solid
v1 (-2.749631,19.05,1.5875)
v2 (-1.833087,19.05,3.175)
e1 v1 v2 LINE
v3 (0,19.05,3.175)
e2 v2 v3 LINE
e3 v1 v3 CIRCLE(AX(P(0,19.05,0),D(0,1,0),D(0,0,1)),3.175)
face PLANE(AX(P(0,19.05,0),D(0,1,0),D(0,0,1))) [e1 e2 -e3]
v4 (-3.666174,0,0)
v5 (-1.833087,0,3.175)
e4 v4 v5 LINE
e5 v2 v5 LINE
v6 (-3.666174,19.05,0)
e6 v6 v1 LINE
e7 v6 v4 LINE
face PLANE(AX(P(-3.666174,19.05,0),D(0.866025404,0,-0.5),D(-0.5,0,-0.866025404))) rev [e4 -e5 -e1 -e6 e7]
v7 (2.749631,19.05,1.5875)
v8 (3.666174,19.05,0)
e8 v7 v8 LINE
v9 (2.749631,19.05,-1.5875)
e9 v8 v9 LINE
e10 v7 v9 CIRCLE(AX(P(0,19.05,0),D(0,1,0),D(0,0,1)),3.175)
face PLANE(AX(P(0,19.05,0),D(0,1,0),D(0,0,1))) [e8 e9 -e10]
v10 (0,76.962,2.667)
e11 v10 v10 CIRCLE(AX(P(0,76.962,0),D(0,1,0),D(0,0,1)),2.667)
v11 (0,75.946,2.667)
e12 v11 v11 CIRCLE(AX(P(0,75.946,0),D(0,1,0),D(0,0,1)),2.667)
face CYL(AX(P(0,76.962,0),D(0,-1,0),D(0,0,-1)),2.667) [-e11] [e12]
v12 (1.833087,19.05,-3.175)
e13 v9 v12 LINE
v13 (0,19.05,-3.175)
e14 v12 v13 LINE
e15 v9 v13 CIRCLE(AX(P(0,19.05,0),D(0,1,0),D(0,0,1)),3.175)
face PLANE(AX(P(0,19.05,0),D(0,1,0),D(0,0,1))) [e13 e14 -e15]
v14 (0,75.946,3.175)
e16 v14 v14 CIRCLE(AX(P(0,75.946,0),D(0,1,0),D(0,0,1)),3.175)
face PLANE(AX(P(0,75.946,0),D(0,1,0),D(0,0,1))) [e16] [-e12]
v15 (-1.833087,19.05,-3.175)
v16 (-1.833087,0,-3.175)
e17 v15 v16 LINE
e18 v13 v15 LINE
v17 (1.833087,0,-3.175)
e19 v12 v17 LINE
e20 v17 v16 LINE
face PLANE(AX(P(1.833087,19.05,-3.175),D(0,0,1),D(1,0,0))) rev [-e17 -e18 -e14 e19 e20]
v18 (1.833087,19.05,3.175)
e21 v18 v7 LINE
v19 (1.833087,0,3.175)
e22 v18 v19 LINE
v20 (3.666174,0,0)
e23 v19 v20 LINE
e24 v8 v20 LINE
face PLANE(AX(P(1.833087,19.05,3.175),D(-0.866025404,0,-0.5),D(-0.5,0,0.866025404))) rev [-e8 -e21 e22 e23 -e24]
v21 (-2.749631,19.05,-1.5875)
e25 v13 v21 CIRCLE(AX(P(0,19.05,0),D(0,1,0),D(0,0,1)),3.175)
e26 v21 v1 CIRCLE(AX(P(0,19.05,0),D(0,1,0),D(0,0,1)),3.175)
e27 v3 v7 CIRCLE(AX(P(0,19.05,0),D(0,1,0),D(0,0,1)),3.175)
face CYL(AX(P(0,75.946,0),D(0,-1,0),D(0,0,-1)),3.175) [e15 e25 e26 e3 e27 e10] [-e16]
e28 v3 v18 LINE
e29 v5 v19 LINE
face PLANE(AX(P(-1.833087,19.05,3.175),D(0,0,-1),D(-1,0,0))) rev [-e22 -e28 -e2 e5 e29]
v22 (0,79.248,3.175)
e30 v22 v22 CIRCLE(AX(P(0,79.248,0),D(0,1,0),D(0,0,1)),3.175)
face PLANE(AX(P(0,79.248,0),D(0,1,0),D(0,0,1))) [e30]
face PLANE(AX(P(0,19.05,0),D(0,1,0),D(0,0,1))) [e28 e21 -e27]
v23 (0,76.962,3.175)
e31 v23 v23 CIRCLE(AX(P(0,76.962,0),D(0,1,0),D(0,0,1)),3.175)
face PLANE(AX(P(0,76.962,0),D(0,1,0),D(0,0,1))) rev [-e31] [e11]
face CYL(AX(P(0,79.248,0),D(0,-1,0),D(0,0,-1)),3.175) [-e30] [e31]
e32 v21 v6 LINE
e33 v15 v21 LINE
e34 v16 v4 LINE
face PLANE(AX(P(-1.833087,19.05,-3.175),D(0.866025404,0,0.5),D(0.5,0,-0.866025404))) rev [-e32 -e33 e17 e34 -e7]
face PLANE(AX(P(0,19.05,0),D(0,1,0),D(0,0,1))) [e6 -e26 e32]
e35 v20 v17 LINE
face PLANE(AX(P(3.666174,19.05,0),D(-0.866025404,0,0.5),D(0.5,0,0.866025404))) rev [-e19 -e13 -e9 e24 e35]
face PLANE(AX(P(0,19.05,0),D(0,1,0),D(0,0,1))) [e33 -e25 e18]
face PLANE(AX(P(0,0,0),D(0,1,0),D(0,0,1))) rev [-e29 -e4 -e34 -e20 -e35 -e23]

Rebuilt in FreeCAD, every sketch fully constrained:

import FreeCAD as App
import Part
import Sketcher
Q = App.Units.Quantity


def add_polygon(sketch, points):
    """Adds a closed chain of lines whose ends are joined by coincident constraints."""
    first, n = sketch.GeometryCount, len(points)
    for a, b in zip(points, points[1:] + points[:1]):
        sketch.addGeometry(Part.LineSegment(App.Vector(*a, 0), App.Vector(*b, 0)), False)
    for i in range(n):
        sketch.addConstraint(Sketcher.Constraint("Coincident", first + i, 2, first + (i + 1) % n, 1))

doc = App.newDocument("Part")
body = doc.addObject("PartDesign::Body", "Body")

# Sketch on XZ plane
sketch1 = body.newObject("Sketcher::SketchObject", "Sketch")
sketch1.AttachmentSupport = (doc.getObject("XZ_Plane"), [""])
sketch1.MapMode = "FlatFace"
add_polygon(sketch1, [(1.8, -3.2), (-1.8, -3.2), (-3.7, 0), (-1.8, 3.2), (1.8, 3.2), (3.7, 0)])  # lines 0-5
sketch1.addConstraint([
    Sketcher.Constraint("Horizontal", 0),
    Sketcher.Constraint("Horizontal", 3),
    Sketcher.Constraint("Symmetric", 0, 2, 3, 2, -1, 1),
    Sketcher.Constraint("Symmetric", 1, 2, 4, 2, -1, 1),
    Sketcher.Constraint("PointOnObject", 1, 2, -1),
    Sketcher.Constraint("Parallel", 2, 5),
    Sketcher.Constraint("Vertical", 0, 2, 2, 2),
    Sketcher.Constraint("Angle", 1, Q("120 deg")),
    Sketcher.Constraint("DistanceY", 0, 2, 2, 2, Q("0.25 in")),
    Sketcher.Constraint("DistanceX", 0, 2, 0, 1, Q("3.666174 mm")),
])
pad1 = body.newObject("PartDesign::Pad", "Pad")
pad1.Profile = sketch1
pad1.Length = Q("0.75 in")
pad1.Reversed = True

# Sketch on XZ plane
sketch2 = body.newObject("Sketcher::SketchObject", "Sketch001")
sketch2.AttachmentSupport = (doc.getObject("XZ_Plane"), [""])
sketch2.MapMode = "FlatFace"
sketch2.AttachmentOffset = App.Placement(App.Vector(0, 0, -0.75 * 25.4), App.Rotation())
sketch2.addGeometry(Part.Circle(App.Vector(0, 0, 0), App.Vector(0, 0, 1), 3.2), False)
sketch2.addConstraint([
    Sketcher.Constraint("Coincident", 0, 3, -1, 1),
    Sketcher.Constraint("Diameter", 0, Q("0.25 in")),
])
pad2 = body.newObject("PartDesign::Pad", "Pad001")
pad2.Profile = sketch2
pad2.Length = Q("2.24 in")
pad2.Reversed = True

# Sketch on XZ plane
sketch3 = body.newObject("Sketcher::SketchObject", "Sketch002")
sketch3.AttachmentSupport = (doc.getObject("XZ_Plane"), [""])
sketch3.MapMode = "FlatFace"
sketch3.AttachmentOffset = App.Placement(App.Vector(0, 0, -2.99 * 25.4), App.Rotation())
sketch3.addGeometry(Part.Circle(App.Vector(0, 0, 0), App.Vector(0, 0, 1), 2.7), False)
sketch3.addConstraint([
    Sketcher.Constraint("Coincident", 0, 3, -1, 1),
    Sketcher.Constraint("Diameter", 0, Q("0.21 in")),
])
pad3 = body.newObject("PartDesign::Pad", "Pad002")
pad3.Profile = sketch3
pad3.Length = Q("0.04 in")
pad3.Reversed = True

# Sketch on XZ plane
sketch4 = body.newObject("Sketcher::SketchObject", "Sketch003")
sketch4.AttachmentSupport = (doc.getObject("XZ_Plane"), [""])
sketch4.MapMode = "FlatFace"
sketch4.AttachmentOffset = App.Placement(App.Vector(0, 0, -3.03 * 25.4), App.Rotation())
sketch4.addGeometry(Part.Circle(App.Vector(0, 0, 0), App.Vector(0, 0, 1), 3.2), False)
sketch4.addConstraint([
    Sketcher.Constraint("Coincident", 0, 3, -1, 1),
    Sketcher.Constraint("Diameter", 0, Q("0.25 in")),
])
pad4 = body.newObject("PartDesign::Pad", "Pad003")
pad4.Profile = sketch4
pad4.Length = Q("0.09 in")
pad4.Reversed = True

doc.recompute()
